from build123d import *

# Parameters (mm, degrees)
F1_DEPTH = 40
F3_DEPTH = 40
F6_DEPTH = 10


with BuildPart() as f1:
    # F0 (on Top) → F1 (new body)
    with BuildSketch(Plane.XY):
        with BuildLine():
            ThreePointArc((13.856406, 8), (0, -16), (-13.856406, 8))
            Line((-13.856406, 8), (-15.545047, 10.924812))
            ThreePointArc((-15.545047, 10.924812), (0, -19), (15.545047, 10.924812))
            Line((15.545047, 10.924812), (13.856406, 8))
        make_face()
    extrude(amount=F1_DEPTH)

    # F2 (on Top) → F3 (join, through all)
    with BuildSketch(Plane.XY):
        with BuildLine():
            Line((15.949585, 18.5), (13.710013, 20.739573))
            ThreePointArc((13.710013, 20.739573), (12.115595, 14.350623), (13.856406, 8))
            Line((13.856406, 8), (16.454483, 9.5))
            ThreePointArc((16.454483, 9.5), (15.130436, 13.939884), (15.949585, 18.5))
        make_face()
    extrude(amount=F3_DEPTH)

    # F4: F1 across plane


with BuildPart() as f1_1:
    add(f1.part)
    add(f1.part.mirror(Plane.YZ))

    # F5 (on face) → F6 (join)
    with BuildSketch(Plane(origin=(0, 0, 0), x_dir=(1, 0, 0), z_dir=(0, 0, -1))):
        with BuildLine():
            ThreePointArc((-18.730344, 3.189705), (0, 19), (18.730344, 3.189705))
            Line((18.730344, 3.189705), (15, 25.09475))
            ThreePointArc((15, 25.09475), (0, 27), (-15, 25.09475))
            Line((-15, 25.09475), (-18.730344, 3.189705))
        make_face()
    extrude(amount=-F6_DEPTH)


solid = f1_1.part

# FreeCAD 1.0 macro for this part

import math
import FreeCAD as App
import Part
import Sketcher
from FreeCAD import Vector
Q = App.Units.Quantity

doc = App.newDocument("Part")
params = doc.addObject("Spreadsheet::Sheet", "Params")
for row, (alias, value) in enumerate([
    ("sketch1_radius", "16 mm"),
    ("sketch1_radius2", "19 mm"),
    ("pad1_length", "40 mm"),
    ("sketch2_radius", "13.000001 mm"),
    ("sketch2_length", "3.000001 mm"),
    ("pad2_length", "40 mm"),
    ("sketch3_radius", "19 mm"),
    ("pad3_length", "10 mm"),
], start=1):
    params.set(f"A{row}", alias)
    params.set(f"B{row}", "=" + value)
    params.setAlias(f"B{row}", alias)

body = doc.addObject("PartDesign::Body", "Body")

# Sketch on XY plane
sketch1 = body.newObject("Sketcher::SketchObject", "Sketch")
sketch1.AttachmentSupport = (doc.getObject("XY_Plane"), [""])
sketch1.MapMode = "FlatFace"
sketch1.addGeometry([
    Part.ArcOfCircle(Part.Circle(Vector(0, 0, 0), Vector(0, 0, 1), 16), math.radians(150), math.radians(390)),
    Part.LineSegment(Vector(-13.9, 8, 0), Vector(-15.5, 10.9, 0)),
    Part.ArcOfCircle(Part.Circle(Vector(0, 0, 0), Vector(0, 0, 1), 19), math.radians(145), math.radians(395)),
    Part.LineSegment(Vector(15.5, 10.9, 0), Vector(13.9, 8, 0)),
], False)
sketch1.addConstraint([
    Sketcher.Constraint("Coincident", 0, 1, 1, 1),
    Sketcher.Constraint("Coincident", 1, 2, 2, 1),
    Sketcher.Constraint("Coincident", 2, 2, 3, 1),
    Sketcher.Constraint("Coincident", 3, 2, 0, 2),
    Sketcher.Constraint("Coincident", 0, 3, -1, 1),
    Sketcher.Constraint("Coincident", 2, 3, -1, 1),
    Sketcher.Constraint("Horizontal", 1, 2, 2, 2),
    Sketcher.Constraint("Horizontal", 0, 1, 3, 2),
    Sketcher.Constraint("Radius", 0, Q("16 mm")),
    Sketcher.Constraint("Radius", 2, Q("19 mm")),
    Sketcher.Constraint("Angle", 1, Q("120 deg")),
    Sketcher.Constraint("DistanceY", -1, 1, 0, 1, Q("8 mm")),
])
sketch1.setExpression("Constraints[8]", "Params.sketch1_radius")
sketch1.setExpression("Constraints[9]", "Params.sketch1_radius2")
pad1 = body.newObject("PartDesign::Pad", "Pad")
pad1.Profile = sketch1
pad1.setExpression("Length", "Params.pad1_length")

# Sketch on XY plane
sketch2 = body.newObject("Sketcher::SketchObject", "Sketch001")
sketch2.AttachmentSupport = (doc.getObject("XY_Plane"), [""])
sketch2.MapMode = "FlatFace"
sketch2.addGeometry([
    Part.LineSegment(Vector(15.9, 18.5, 0), Vector(13.7, 20.7, 0)),
    Part.ArcOfCircle(Part.Circle(Vector(25.1, 14.5, 0), Vector(0, 0, 1), 13), math.radians(151), math.radians(210)),
    Part.LineSegment(Vector(13.9, 8, 0), Vector(16.5, 9.5, 0)),
    Part.ArcOfCircle(Part.Circle(Vector(25.1, 14.5, 0), Vector(0, 0, 1), 10), math.radians(156), math.radians(210)),
], False)
sketch2.addConstraint([
    Sketcher.Constraint("Coincident", 0, 2, 1, 1),
    Sketcher.Constraint("Coincident", 1, 2, 2, 1),
    Sketcher.Constraint("Coincident", 2, 2, 3, 2),
    Sketcher.Constraint("Coincident", 3, 1, 0, 1),
    Sketcher.Constraint("Coincident", 3, 3, 1, 3),
    Sketcher.Constraint("Radius", 1, Q("13.000001 mm")),
    Sketcher.Constraint("Angle", 0, Q("134.999987 deg")),
    Sketcher.Constraint("Angle", 2, Q("29.999992 deg")),
    Sketcher.Constraint("Distance", 2, Q("3.000001 mm")),
    Sketcher.Constraint("DistanceY", -1, 1, 1, 2, Q("8 mm")),
    Sketcher.Constraint("DistanceY", 2, 2, 1, 3, Q("4.999999 mm")),
    Sketcher.Constraint("DistanceY", 2, 2, 3, 1, Q("9 mm")),
    Sketcher.Constraint("DistanceX", -1, 1, 3, 3, Q("25.114741 mm")),
])
sketch2.setExpression("Constraints[5]", "Params.sketch2_radius")
sketch2.setExpression("Constraints[8]", "Params.sketch2_length")
pad2 = body.newObject("PartDesign::Pad", "Pad001")
pad2.Profile = sketch2
pad2.setExpression("Length", "Params.pad2_length")
body2 = doc.addObject("PartDesign::Body", "Body001")
doc.recompute()

body2.BaseFeature = body
doc.recompute()

mirroring = doc.addObject("Part::Mirroring", "Mirroring")
mirroring.Source = body
mirroring.Base = Vector(0, 0, 0)
mirroring.Normal = Vector(1, 0, 0)
body3 = doc.addObject("PartDesign::Body", "Body002")
body3.BaseFeature = mirroring
boolean = body2.newObject("PartDesign::Boolean", "Boolean")
boolean.Type = "Fuse"
boolean.addObjects([body3])
doc.recompute()

# Sketch on XY plane
sketch3 = body2.newObject("Sketcher::SketchObject", "Sketch002")
sketch3.AttachmentSupport = (doc.getObject("XY_Plane001"), [""])
sketch3.MapMode = "FlatFace"
sketch3.addGeometry([
    Part.ArcOfCircle(Part.Circle(Vector(0, 0, 0), Vector(0, 0, 1), 19), math.radians(-170), math.radians(-10)),
    Part.LineSegment(Vector(19, -3, 0), Vector(15, -25, 0)),
    Part.ArcOfCircle(Part.Circle(Vector(0, 33, 0), Vector(0, 0, 1), 60), math.radians(-104), math.radians(-76)),
    Part.LineSegment(Vector(-15, -25, 0), Vector(-19, -3, 0)),
], False)
sketch3.addConstraint([
    Sketcher.Constraint("Tangent", 0, 2, 1, 1),
    Sketcher.Constraint("Coincident", 1, 2, 2, 2),
    Sketcher.Constraint("Coincident", 2, 1, 3, 1),
    Sketcher.Constraint("Tangent", 3, 2, 0, 1),
    Sketcher.Constraint("Coincident", 0, 3, -1, 1),
    Sketcher.Constraint("Symmetric", 1, 2, 2, 1, -2),
    Sketcher.Constraint("Radius", 0, Q("19 mm")),
    Sketcher.Constraint("DistanceX", -1, 1, 1, 2, Q("15 mm")),
    Sketcher.Constraint("Radius", 2, Q("59.999994 mm")),
    Sketcher.Constraint("DistanceY", 0, 2, 2, 3, Q("36.189699 mm")),
])
sketch3.setExpression("Constraints[6]", "Params.sketch3_radius")
pad3 = body2.newObject("PartDesign::Pad", "Pad002")
pad3.Profile = sketch3
pad3.setExpression("Length", "Params.pad3_length")
mirroring.Visibility = False

doc.recompute()
